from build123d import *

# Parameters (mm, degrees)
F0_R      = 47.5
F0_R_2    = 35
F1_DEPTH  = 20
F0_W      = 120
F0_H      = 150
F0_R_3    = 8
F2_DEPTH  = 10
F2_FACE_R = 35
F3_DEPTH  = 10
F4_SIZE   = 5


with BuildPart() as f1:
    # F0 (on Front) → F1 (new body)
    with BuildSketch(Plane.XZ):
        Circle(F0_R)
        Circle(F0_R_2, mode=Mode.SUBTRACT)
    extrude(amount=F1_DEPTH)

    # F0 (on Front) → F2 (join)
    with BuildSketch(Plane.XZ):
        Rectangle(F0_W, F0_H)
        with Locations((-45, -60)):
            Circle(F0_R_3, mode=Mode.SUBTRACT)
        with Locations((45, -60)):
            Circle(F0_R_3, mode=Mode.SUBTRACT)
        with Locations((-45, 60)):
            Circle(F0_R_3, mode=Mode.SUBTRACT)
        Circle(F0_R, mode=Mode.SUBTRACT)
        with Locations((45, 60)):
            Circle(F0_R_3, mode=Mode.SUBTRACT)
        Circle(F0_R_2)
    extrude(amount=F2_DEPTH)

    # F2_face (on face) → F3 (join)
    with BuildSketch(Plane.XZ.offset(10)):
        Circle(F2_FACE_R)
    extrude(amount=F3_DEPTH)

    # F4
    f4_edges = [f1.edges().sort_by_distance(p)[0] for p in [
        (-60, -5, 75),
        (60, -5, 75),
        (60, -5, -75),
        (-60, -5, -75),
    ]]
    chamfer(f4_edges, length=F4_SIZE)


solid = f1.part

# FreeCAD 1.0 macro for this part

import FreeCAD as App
import Part
import Sketcher
from FreeCAD import Vector


def edges_at(feature, points):
    """Names of the edges that pass closest to the given points."""
    edges = feature.Shape.Edges
    near = lambda p: min(range(len(edges)), key=lambda i: edges[i].distToShape(Part.Vertex(*p))[0])
    return sorted({f"Edge{near(p) + 1}" for p in points})

doc = App.newDocument("Part")
body = doc.addObject("PartDesign::Body", "Body")

sketch1 = body.newObject("Sketcher::SketchObject", "Sketch")
sketch1.AttachmentSupport = (doc.getObject("XZ_Plane"), [""])
sketch1.MapMode = "FlatFace"
sketch1.addGeometry(Part.Circle(Vector(0, 0, 0), Vector(0, 0, 1), 48), False)
sketch1.addGeometry(Part.Circle(Vector(0, 0, 0), Vector(0, 0, 1), 35), False)
sketch1.addConstraint(Sketcher.Constraint("Coincident", 0, 3, -1, 1))
sketch1.addConstraint(Sketcher.Constraint("Coincident", 1, 3, -1, 1))
sketch1.addConstraint(Sketcher.Constraint("Diameter", 0, 95.0))
sketch1.addConstraint(Sketcher.Constraint("Diameter", 1, 70.0))
pad1 = body.newObject("PartDesign::Pad", "Pad")
pad1.Profile = sketch1
pad1.Length = 20

sketch2 = body.newObject("Sketcher::SketchObject", "Sketch001")
sketch2.AttachmentSupport = (doc.getObject("XZ_Plane"), [""])
sketch2.MapMode = "FlatFace"
sketch2.addGeometry(Part.LineSegment(Vector(-60, 75, 0), Vector(-60, -75, 0)), False)
sketch2.addGeometry(Part.LineSegment(Vector(-60, -75, 0), Vector(60, -75, 0)), False)
sketch2.addGeometry(Part.LineSegment(Vector(60, -75, 0), Vector(60, 75, 0)), False)
sketch2.addGeometry(Part.LineSegment(Vector(60, 75, 0), Vector(-60, 75, 0)), False)
sketch2.addGeometry(Part.Circle(Vector(-45, -60, 0), Vector(0, 0, 1), 8), False)
sketch2.addGeometry(Part.Circle(Vector(45, -60, 0), Vector(0, 0, 1), 8), False)
sketch2.addGeometry(Part.Circle(Vector(-45, 60, 0), Vector(0, 0, 1), 8), False)
sketch2.addGeometry(Part.Circle(Vector(0, 0, 0), Vector(0, 0, 1), 48), False)
sketch2.addGeometry(Part.Circle(Vector(45, 60, 0), Vector(0, 0, 1), 8), False)
sketch2.addGeometry(Part.Circle(Vector(0, 0, 0), Vector(0, 0, 1), 35), False)
sketch2.addConstraint(Sketcher.Constraint("Coincident", 0, 2, 1, 1))
sketch2.addConstraint(Sketcher.Constraint("Coincident", 1, 2, 2, 1))
sketch2.addConstraint(Sketcher.Constraint("Coincident", 2, 2, 3, 1))
sketch2.addConstraint(Sketcher.Constraint("Coincident", 3, 2, 0, 1))
sketch2.addConstraint(Sketcher.Constraint("Vertical", 0))
sketch2.addConstraint(Sketcher.Constraint("Horizontal", 1))
sketch2.addConstraint(Sketcher.Constraint("Vertical", 2))
sketch2.addConstraint(Sketcher.Constraint("Horizontal", 3))
sketch2.addConstraint(Sketcher.Constraint("Coincident", 7, 3, -1, 1))
sketch2.addConstraint(Sketcher.Constraint("Coincident", 9, 3, -1, 1))
sketch2.addConstraint(Sketcher.Constraint("Equal", 4, 5))
sketch2.addConstraint(Sketcher.Constraint("Equal", 5, 6))
sketch2.addConstraint(Sketcher.Constraint("Equal", 6, 8))
sketch2.addConstraint(Sketcher.Constraint("Symmetric", 5, 3, 6, 3, -1, 1))
sketch2.addConstraint(Sketcher.Constraint("Symmetric", 4, 3, 8, 3, -1, 1))
sketch2.addConstraint(Sketcher.Constraint("Symmetric", 0, 2, 2, 2, -1, 1))
sketch2.addConstraint(Sketcher.Constraint("Symmetric", 4, 3, 5, 3, -2))
sketch2.addConstraint(Sketcher.Constraint("Diameter", 4, 16.0))
sketch2.addConstraint(Sketcher.Constraint("Diameter", 7, 95.0))
sketch2.addConstraint(Sketcher.Constraint("Diameter", 9, 70.0))
sketch2.addConstraint(Sketcher.Constraint("DistanceX", 1, 1, 1, 2, 120.0))
sketch2.addConstraint(Sketcher.Constraint("DistanceY", 0, 2, 0, 1, 150.0))
sketch2.addConstraint(Sketcher.Constraint("DistanceX", 4, 3, -1, 1, 45.0))
sketch2.addConstraint(Sketcher.Constraint("DistanceY", 4, 3, -1, 1, 60.0))
pad2 = body.newObject("PartDesign::Pad", "Pad001")
pad2.Profile = sketch2
pad2.Length = 10

sketch3 = body.newObject("Sketcher::SketchObject", "Sketch002")
sketch3.AttachmentSupport = (doc.getObject("XZ_Plane"), [""])
sketch3.MapMode = "FlatFace"
sketch3.AttachmentOffset = App.Placement(Vector(0, 0, 10), App.Rotation())
sketch3.addGeometry(Part.Circle(Vector(0, 0, 0), Vector(0, 0, 1), 35), False)
sketch3.addConstraint(Sketcher.Constraint("Coincident", 0, 3, -1, 1))
sketch3.addConstraint(Sketcher.Constraint("Diameter", 0, 70.0))
pad3 = body.newObject("PartDesign::Pad", "Pad002")
pad3.Profile = sketch3
pad3.Length = 10
doc.recompute()

chamfer = body.newObject("PartDesign::Chamfer", "Chamfer")
chamfer.Base = (pad3, edges_at(pad3, [
    (-60, -5, 75),
    (60, -5, 75),
    (60, -5, -75),
    (-60, -5, -75),
]))
chamfer.Size = 5

doc.recompute()
